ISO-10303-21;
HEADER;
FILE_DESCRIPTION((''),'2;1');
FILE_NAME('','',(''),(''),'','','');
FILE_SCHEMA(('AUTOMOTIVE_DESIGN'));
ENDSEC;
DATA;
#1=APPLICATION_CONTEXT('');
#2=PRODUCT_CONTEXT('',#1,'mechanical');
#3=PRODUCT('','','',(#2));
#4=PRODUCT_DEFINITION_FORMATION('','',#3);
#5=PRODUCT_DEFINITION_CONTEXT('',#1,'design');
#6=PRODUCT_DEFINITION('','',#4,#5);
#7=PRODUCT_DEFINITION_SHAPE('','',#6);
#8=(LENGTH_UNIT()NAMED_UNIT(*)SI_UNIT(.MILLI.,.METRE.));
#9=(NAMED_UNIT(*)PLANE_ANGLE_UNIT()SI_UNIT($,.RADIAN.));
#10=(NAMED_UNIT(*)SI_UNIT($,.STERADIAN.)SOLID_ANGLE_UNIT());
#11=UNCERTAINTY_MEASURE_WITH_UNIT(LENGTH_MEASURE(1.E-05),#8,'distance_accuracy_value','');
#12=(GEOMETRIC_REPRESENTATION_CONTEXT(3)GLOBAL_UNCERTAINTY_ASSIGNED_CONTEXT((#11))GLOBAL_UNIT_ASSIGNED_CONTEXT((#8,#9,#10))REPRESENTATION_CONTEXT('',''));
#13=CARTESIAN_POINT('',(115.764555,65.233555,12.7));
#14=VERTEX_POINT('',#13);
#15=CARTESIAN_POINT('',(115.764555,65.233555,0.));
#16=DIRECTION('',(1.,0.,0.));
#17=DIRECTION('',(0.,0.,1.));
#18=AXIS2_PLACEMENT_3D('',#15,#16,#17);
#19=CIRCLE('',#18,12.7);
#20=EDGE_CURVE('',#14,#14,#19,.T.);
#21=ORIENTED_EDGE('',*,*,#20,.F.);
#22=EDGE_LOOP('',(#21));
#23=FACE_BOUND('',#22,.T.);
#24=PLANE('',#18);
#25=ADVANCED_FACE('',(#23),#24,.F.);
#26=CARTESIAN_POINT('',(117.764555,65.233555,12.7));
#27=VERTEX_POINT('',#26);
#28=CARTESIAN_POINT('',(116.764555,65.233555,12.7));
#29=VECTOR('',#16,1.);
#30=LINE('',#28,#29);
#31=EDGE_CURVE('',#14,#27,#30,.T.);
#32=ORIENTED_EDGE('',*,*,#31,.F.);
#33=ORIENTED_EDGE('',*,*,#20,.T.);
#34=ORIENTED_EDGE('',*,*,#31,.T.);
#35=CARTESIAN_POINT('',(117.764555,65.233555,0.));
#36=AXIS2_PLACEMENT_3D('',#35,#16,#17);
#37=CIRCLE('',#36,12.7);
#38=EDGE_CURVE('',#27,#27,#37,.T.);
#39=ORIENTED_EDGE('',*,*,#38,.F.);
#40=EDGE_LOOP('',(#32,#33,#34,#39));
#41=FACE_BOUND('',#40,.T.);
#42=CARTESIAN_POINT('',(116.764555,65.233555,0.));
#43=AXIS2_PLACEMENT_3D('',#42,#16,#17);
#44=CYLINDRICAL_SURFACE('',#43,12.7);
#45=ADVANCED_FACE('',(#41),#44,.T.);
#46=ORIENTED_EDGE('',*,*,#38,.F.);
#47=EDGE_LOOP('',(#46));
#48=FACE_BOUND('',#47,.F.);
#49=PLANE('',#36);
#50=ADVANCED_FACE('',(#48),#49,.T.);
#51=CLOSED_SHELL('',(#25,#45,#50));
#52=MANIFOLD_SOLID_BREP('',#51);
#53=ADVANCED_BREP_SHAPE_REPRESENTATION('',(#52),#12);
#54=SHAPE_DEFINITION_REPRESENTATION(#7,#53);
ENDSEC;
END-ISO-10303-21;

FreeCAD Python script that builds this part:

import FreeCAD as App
import Part
import Sketcher
from FreeCAD import Vector
Q = App.Units.Quantity


def add_polygon(sketch, points):
    """Adds a closed chain of lines whose ends are joined by coincident constraints."""
    first, n = sketch.GeometryCount, len(points)
    for a, b in zip(points, points[1:] + points[:1]):
        sketch.addGeometry(Part.LineSegment(App.Vector(*a, 0), App.Vector(*b, 0)), False)
    for i in range(n):
        sketch.addConstraint(Sketcher.Constraint("Coincident", first + i, 2, first + (i + 1) % n, 1))

doc = App.newDocument("Part")
params = doc.addObject("Spreadsheet::Sheet", "Params")
for row, (alias, value) in enumerate([
    ("sketch1_width", "2 mm"),
    ("sketch1_height", "12.7 mm"),
    ("revolution_angle", "360 deg"),
], start=1):
    params.set(f"A{row}", alias)
    params.set(f"B{row}", "=" + value)
    params.setAlias(f"B{row}", alias)

body = doc.addObject("PartDesign::Body", "Body")

# Sketch on XY plane
sketch1 = body.newObject("Sketcher::SketchObject", "Sketch")
sketch1.AttachmentSupport = (doc.getObject("XY_Plane"), [""])
sketch1.MapMode = "FlatFace"
add_polygon(sketch1, [(115.8, 77.9), (115.8, 65.2), (117.8, 65.2), (117.8, 77.9)])  # lines 0-3
sketch1.addGeometry(Part.LineSegment(Vector(115.8, 65.2, 0), Vector(117.8, 65.2, 0)), True)  # axis
sketch1.addConstraint([
    Sketcher.Constraint("Vertical", 0),
    Sketcher.Constraint("Horizontal", 1),
    Sketcher.Constraint("Vertical", 2),
    Sketcher.Constraint("Horizontal", 3),
    Sketcher.Constraint("Horizontal", 4),
    Sketcher.Constraint("Coincident", 4, 1, 0, 2),
    Sketcher.Constraint("Vertical", 2, 2, 4, 2),
    Sketcher.Constraint("DistanceX", 1, 1, 1, 2, Q("2 mm")),
    Sketcher.Constraint("DistanceY", 0, 2, 0, 1, Q("12.7 mm")),
    Sketcher.Constraint("DistanceX", -1, 1, 0, 2, Q("115.764555 mm")),
    Sketcher.Constraint("DistanceY", -1, 1, 0, 2, Q("65.233555 mm")),
])
sketch1.setExpression("Constraints[11]", "Params.sketch1_width")
sketch1.setExpression("Constraints[12]", "Params.sketch1_height")
revolution = body.newObject("PartDesign::Revolution", "Revolution")
revolution.Profile = sketch1
revolution.ReferenceAxis = (sketch1, ["Axis0"])
revolution.setExpression("Angle", "Params.revolution_angle")

doc.recompute()
